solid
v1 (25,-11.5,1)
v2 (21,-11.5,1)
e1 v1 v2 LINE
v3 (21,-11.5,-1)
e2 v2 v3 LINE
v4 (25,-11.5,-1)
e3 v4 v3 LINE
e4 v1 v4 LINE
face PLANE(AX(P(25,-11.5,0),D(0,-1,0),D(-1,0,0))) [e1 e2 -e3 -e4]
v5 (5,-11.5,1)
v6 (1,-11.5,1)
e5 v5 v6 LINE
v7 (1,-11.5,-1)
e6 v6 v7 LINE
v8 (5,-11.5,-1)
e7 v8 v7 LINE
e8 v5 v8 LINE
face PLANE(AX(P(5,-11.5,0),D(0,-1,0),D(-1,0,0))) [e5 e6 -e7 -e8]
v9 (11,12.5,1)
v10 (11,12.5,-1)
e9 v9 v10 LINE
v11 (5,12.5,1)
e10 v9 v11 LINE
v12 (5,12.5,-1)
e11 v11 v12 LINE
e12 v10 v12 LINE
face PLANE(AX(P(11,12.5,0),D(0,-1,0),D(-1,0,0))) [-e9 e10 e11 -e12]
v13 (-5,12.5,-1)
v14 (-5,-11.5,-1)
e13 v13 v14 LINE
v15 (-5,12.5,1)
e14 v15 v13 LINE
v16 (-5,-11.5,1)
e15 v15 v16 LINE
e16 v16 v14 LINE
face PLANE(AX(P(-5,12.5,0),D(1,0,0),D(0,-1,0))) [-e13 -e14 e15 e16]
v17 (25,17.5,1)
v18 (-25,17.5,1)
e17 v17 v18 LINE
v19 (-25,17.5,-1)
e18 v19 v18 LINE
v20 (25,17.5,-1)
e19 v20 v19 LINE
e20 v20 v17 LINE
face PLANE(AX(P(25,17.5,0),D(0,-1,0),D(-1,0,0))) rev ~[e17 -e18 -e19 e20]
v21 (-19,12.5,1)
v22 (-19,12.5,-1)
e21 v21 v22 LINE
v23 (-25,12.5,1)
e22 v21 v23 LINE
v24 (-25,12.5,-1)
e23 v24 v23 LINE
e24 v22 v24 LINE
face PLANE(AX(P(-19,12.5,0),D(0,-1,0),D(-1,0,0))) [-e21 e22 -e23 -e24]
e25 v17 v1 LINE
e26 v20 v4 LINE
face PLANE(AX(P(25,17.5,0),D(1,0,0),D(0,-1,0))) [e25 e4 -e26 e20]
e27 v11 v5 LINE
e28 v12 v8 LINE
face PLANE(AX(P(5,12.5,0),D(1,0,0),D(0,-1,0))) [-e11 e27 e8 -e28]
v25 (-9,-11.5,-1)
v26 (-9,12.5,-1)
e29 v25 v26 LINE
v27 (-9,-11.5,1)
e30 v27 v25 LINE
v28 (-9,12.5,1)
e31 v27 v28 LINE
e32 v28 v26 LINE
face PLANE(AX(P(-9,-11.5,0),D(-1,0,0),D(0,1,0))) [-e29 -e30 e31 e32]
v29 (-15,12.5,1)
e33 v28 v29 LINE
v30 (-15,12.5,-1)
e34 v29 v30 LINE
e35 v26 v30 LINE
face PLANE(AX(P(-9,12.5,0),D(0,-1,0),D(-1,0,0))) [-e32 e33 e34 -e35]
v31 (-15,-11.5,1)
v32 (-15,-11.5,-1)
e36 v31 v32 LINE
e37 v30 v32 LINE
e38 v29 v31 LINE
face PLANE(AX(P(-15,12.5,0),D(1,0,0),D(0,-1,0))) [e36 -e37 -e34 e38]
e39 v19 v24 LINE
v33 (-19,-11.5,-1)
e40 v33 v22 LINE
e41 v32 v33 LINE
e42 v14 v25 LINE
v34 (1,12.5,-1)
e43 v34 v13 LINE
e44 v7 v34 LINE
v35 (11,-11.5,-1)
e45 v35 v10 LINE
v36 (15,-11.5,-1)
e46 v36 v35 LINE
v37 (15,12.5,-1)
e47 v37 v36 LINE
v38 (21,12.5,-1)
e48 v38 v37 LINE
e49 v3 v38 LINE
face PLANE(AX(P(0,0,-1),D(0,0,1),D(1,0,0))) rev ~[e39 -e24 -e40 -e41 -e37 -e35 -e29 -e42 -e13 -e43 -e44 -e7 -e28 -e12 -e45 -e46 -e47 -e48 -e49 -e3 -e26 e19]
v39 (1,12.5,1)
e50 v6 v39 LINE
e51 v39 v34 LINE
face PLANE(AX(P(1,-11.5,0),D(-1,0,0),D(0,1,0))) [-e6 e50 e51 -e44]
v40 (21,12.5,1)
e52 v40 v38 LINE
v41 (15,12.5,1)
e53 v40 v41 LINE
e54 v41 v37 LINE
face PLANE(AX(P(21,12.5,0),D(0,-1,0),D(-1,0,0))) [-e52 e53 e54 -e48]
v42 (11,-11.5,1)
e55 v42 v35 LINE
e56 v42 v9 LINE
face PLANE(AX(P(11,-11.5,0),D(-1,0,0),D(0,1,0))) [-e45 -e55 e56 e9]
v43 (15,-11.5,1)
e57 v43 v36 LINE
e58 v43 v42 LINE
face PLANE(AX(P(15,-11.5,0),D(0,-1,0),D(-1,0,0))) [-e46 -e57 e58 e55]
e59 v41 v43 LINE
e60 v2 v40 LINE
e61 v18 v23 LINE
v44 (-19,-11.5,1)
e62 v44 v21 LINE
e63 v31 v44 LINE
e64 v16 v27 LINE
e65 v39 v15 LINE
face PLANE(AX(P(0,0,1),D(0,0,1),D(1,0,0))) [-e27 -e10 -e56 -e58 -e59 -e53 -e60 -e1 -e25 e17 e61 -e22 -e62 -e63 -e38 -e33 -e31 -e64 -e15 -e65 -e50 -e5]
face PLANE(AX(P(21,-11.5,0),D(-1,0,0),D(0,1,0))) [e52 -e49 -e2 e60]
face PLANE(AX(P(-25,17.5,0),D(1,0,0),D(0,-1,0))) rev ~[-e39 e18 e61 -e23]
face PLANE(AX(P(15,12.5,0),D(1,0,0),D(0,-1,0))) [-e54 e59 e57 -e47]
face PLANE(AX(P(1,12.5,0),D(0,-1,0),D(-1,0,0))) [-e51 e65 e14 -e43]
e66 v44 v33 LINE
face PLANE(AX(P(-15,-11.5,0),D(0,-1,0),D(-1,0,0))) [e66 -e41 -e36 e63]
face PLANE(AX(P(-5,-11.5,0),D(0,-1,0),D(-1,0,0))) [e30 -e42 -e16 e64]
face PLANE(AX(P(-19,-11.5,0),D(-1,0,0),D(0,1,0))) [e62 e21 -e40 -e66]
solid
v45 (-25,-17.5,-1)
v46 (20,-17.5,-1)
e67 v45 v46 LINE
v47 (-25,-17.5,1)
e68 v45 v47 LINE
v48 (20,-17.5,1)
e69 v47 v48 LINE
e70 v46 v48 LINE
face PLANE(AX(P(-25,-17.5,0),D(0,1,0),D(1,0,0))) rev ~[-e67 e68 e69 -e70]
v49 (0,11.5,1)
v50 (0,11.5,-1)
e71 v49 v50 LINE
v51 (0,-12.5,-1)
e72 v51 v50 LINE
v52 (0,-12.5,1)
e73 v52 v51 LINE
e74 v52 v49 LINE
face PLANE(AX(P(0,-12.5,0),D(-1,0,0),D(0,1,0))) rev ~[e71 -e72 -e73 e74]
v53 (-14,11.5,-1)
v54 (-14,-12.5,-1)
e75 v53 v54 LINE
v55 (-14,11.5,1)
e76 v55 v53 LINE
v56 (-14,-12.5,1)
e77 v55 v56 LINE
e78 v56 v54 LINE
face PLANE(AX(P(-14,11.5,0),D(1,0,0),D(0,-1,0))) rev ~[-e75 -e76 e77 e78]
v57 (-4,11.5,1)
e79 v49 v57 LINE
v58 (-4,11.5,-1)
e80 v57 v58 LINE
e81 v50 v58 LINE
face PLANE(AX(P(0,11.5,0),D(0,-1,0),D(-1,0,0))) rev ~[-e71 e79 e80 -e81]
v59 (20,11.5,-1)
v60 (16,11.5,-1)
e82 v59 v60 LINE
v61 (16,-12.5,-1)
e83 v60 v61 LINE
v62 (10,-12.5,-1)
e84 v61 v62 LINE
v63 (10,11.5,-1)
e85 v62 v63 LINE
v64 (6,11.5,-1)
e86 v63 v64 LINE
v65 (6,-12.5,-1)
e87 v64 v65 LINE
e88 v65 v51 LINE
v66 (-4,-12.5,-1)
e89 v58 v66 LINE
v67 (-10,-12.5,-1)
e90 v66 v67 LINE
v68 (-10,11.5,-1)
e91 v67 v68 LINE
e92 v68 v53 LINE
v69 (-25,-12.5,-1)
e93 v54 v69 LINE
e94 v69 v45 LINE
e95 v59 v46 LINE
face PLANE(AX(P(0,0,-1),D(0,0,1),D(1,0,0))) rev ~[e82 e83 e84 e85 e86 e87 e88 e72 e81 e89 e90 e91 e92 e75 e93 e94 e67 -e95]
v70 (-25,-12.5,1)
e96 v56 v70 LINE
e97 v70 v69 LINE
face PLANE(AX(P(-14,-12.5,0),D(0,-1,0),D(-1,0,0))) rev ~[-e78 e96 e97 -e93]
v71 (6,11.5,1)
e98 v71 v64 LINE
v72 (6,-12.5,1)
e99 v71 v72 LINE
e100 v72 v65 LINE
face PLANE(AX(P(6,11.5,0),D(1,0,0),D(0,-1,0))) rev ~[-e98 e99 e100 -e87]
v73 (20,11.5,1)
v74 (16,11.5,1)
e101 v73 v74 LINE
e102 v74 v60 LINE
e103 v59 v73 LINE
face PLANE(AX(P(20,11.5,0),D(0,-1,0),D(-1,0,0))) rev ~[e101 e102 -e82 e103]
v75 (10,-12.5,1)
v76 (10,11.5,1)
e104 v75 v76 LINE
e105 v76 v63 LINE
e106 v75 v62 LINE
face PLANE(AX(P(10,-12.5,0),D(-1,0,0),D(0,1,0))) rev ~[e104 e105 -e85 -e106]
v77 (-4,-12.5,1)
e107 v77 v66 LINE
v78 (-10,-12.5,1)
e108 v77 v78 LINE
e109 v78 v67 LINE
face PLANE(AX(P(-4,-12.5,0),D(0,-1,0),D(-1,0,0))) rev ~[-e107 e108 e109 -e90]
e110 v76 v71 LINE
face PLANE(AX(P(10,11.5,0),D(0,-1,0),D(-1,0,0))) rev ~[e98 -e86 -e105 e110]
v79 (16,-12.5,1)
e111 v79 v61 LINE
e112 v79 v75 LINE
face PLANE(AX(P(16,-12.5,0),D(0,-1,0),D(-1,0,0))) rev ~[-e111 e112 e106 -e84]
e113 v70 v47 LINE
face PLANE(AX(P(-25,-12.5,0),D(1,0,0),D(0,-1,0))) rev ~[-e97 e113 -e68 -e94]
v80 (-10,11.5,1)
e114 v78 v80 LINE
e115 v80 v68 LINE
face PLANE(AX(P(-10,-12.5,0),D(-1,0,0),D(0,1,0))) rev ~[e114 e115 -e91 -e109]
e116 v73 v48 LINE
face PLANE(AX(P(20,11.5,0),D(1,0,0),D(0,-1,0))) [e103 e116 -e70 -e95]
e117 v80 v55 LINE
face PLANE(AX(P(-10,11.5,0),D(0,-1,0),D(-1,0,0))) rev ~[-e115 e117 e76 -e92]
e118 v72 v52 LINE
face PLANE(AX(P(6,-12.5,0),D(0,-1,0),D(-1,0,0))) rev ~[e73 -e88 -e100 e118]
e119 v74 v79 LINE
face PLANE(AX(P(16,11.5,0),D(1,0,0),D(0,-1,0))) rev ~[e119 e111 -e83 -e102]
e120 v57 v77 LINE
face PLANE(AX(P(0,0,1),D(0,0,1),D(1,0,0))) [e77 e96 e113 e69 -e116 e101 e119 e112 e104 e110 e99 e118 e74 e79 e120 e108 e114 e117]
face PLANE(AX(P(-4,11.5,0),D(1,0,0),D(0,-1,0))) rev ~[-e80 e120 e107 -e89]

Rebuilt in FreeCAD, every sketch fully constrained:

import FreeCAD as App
import Part
import Sketcher
from FreeCAD import Vector


def add_polygon(sketch, points):
    """Adds a closed chain of lines whose ends are joined by coincident constraints."""
    first, n = sketch.GeometryCount, len(points)
    for a, b in zip(points, points[1:] + points[:1]):
        sketch.addGeometry(Part.LineSegment(App.Vector(*a, 0), App.Vector(*b, 0)), False)
    for i in range(n):
        sketch.addConstraint(Sketcher.Constraint("Coincident", first + i, 2, first + (i + 1) % n, 1))

doc = App.newDocument("Part")
params = doc.addObject("Spreadsheet::Sheet", "Params")
for row, (alias, value) in enumerate([
    ("sketch1_width", "50 mm"),
    ("sketch1_width2", "6 mm"),
    ("sketch1_height", "5 mm"),
    ("sketch1_height2", "29 mm"),
    ("pad1_length", "2 mm"),
], start=1):
    params.set(f"A{row}", alias)
    params.set(f"B{row}", "=" + value)
    params.setAlias(f"B{row}", alias)

body = doc.addObject("PartDesign::Body", "Body")
body.AllowCompound = True

sketch1 = body.newObject("Sketcher::SketchObject", "Sketch")
sketch1.AttachmentSupport = (doc.getObject("XY_Plane"), [""])
sketch1.MapMode = "FlatFace"
add_polygon(sketch1, [(25, -11.5), (25, 17.5), (-25, 17.5), (-25, 12.5), (-19, 12.5), (-19, -11.5), (-15, -11.5), (-15, 12.5), (-9, 12.5), (-9, -11.5), (-5, -11.5), (-5, 12.5), (1, 12.5), (1, -11.5), (5, -11.5), (5, 12.5), (11, 12.5), (11, -11.5), (15, -11.5), (15, 12.5), (21, 12.5), (21, -11.5)])
add_polygon(sketch1, [(-25, -12.5), (-25, -17.5), (20, -17.5), (20, 11.5), (16, 11.5), (16, -12.5), (10, -12.5), (10, 11.5), (6, 11.5), (6, -12.5), (0, -12.5), (0, 11.5), (-4, 11.5), (-4, -12.5), (-10, -12.5), (-10, 11.5), (-14, 11.5), (-14, -12.5)])
sketch1.addConstraint([
    Sketcher.Constraint("Vertical", 0),
    Sketcher.Constraint("Horizontal", 1),
    Sketcher.Constraint("Vertical", 2),
    Sketcher.Constraint("Horizontal", 3),
    Sketcher.Constraint("Vertical", 4),
    Sketcher.Constraint("Horizontal", 5),
    Sketcher.Constraint("Vertical", 6),
    Sketcher.Constraint("Horizontal", 7),
    Sketcher.Constraint("Vertical", 8),
    Sketcher.Constraint("Horizontal", 9),
    Sketcher.Constraint("Vertical", 10),
    Sketcher.Constraint("Horizontal", 11),
    Sketcher.Constraint("Vertical", 12),
    Sketcher.Constraint("Horizontal", 13),
    Sketcher.Constraint("Vertical", 14),
    Sketcher.Constraint("Horizontal", 15),
    Sketcher.Constraint("Vertical", 16),
    Sketcher.Constraint("Horizontal", 17),
    Sketcher.Constraint("Vertical", 18),
    Sketcher.Constraint("Horizontal", 19),
    Sketcher.Constraint("Vertical", 20),
    Sketcher.Constraint("Horizontal", 21),
    Sketcher.Constraint("Vertical", 22),
    Sketcher.Constraint("Horizontal", 23),
    Sketcher.Constraint("Vertical", 24),
    Sketcher.Constraint("Horizontal", 25),
    Sketcher.Constraint("Vertical", 26),
    Sketcher.Constraint("Horizontal", 27),
    Sketcher.Constraint("Vertical", 28),
    Sketcher.Constraint("Horizontal", 29),
    Sketcher.Constraint("Vertical", 30),
    Sketcher.Constraint("Horizontal", 31),
    Sketcher.Constraint("Vertical", 32),
    Sketcher.Constraint("Horizontal", 33),
    Sketcher.Constraint("Vertical", 34),
    Sketcher.Constraint("Horizontal", 35),
    Sketcher.Constraint("Vertical", 36),
    Sketcher.Constraint("Horizontal", 37),
    Sketcher.Constraint("Vertical", 38),
    Sketcher.Constraint("Horizontal", 39),
    Sketcher.Constraint("Symmetric", 0, 2, 22, 2, -1, 1),
    Sketcher.Constraint("Symmetric", 9, 2, 13, 2, -2),
    Sketcher.Constraint("Symmetric", 5, 2, 17, 2, -2),
    Sketcher.Constraint("Symmetric", 27, 2, 35, 2, -2),
    Sketcher.Constraint("Symmetric", 2, 2, 39, 2, -1),
    Sketcher.Constraint("PointOnObject", 31, 2, -2),
    Sketcher.Constraint("Horizontal", 3, 2, 6, 2),
    Sketcher.Constraint("Horizontal", 5, 2, 8, 2),
    Sketcher.Constraint("Horizontal", 7, 2, 10, 2),
    Sketcher.Constraint("Horizontal", 11, 2, 14, 2),
    Sketcher.Constraint("Horizontal", 15, 2, 18, 2),
    Sketcher.Constraint("Horizontal", 17, 2, 20, 2),
    Sketcher.Constraint("Horizontal", 25, 2, 28, 2),
    Sketcher.Constraint("Horizontal", 27, 2, 30, 2),
    Sketcher.Constraint("Horizontal", 29, 2, 32, 2),
    Sketcher.Constraint("Horizontal", 33, 2, 36, 2),
    Sketcher.Constraint("Horizontal", 35, 2, 38, 2),
    Sketcher.Constraint("Equal", 3, 7),
    Sketcher.Constraint("Equal", 5, 9),
    Sketcher.Constraint("Equal", 7, 11),
    Sketcher.Constraint("Equal", 9, 13),
    Sketcher.Constraint("Equal", 11, 15),
    Sketcher.Constraint("Equal", 15, 19),
    Sketcher.Constraint("Equal", 21, 25),
    Sketcher.Constraint("Equal", 19, 27),
    Sketcher.Constraint("Equal", 25, 29),
    Sketcher.Constraint("Equal", 27, 31),
    Sketcher.Constraint("Equal", 29, 33),
    Sketcher.Constraint("Equal", 33, 37),
    Sketcher.Constraint("Equal", 0, 24),
    Sketcher.Constraint("DistanceX", 1, 2, 1, 1, 50.0),
    Sketcher.Constraint("DistanceX", 3, 1, 3, 2, 6.0),
    Sketcher.Constraint("DistanceY", 2, 2, 2, 1, 5.0),
    Sketcher.Constraint("DistanceY", 22, 2, 4, 2, 6.0),
    Sketcher.Constraint("DistanceY", 0, 1, 0, 2, 29.0),
])
sketch1.setExpression("Constraints[110]", "Params.sketch1_width")
sketch1.setExpression("Constraints[111]", "Params.sketch1_width2")
sketch1.setExpression("Constraints[112]", "Params.sketch1_height")
sketch1.setExpression("Constraints[114]", "Params.sketch1_height2")
pad1 = body.newObject("PartDesign::Pad", "Pad")
pad1.Profile = sketch1
pad1.setExpression("Length", "Params.pad1_length")
pad1.Midplane = True

doc.recompute()
